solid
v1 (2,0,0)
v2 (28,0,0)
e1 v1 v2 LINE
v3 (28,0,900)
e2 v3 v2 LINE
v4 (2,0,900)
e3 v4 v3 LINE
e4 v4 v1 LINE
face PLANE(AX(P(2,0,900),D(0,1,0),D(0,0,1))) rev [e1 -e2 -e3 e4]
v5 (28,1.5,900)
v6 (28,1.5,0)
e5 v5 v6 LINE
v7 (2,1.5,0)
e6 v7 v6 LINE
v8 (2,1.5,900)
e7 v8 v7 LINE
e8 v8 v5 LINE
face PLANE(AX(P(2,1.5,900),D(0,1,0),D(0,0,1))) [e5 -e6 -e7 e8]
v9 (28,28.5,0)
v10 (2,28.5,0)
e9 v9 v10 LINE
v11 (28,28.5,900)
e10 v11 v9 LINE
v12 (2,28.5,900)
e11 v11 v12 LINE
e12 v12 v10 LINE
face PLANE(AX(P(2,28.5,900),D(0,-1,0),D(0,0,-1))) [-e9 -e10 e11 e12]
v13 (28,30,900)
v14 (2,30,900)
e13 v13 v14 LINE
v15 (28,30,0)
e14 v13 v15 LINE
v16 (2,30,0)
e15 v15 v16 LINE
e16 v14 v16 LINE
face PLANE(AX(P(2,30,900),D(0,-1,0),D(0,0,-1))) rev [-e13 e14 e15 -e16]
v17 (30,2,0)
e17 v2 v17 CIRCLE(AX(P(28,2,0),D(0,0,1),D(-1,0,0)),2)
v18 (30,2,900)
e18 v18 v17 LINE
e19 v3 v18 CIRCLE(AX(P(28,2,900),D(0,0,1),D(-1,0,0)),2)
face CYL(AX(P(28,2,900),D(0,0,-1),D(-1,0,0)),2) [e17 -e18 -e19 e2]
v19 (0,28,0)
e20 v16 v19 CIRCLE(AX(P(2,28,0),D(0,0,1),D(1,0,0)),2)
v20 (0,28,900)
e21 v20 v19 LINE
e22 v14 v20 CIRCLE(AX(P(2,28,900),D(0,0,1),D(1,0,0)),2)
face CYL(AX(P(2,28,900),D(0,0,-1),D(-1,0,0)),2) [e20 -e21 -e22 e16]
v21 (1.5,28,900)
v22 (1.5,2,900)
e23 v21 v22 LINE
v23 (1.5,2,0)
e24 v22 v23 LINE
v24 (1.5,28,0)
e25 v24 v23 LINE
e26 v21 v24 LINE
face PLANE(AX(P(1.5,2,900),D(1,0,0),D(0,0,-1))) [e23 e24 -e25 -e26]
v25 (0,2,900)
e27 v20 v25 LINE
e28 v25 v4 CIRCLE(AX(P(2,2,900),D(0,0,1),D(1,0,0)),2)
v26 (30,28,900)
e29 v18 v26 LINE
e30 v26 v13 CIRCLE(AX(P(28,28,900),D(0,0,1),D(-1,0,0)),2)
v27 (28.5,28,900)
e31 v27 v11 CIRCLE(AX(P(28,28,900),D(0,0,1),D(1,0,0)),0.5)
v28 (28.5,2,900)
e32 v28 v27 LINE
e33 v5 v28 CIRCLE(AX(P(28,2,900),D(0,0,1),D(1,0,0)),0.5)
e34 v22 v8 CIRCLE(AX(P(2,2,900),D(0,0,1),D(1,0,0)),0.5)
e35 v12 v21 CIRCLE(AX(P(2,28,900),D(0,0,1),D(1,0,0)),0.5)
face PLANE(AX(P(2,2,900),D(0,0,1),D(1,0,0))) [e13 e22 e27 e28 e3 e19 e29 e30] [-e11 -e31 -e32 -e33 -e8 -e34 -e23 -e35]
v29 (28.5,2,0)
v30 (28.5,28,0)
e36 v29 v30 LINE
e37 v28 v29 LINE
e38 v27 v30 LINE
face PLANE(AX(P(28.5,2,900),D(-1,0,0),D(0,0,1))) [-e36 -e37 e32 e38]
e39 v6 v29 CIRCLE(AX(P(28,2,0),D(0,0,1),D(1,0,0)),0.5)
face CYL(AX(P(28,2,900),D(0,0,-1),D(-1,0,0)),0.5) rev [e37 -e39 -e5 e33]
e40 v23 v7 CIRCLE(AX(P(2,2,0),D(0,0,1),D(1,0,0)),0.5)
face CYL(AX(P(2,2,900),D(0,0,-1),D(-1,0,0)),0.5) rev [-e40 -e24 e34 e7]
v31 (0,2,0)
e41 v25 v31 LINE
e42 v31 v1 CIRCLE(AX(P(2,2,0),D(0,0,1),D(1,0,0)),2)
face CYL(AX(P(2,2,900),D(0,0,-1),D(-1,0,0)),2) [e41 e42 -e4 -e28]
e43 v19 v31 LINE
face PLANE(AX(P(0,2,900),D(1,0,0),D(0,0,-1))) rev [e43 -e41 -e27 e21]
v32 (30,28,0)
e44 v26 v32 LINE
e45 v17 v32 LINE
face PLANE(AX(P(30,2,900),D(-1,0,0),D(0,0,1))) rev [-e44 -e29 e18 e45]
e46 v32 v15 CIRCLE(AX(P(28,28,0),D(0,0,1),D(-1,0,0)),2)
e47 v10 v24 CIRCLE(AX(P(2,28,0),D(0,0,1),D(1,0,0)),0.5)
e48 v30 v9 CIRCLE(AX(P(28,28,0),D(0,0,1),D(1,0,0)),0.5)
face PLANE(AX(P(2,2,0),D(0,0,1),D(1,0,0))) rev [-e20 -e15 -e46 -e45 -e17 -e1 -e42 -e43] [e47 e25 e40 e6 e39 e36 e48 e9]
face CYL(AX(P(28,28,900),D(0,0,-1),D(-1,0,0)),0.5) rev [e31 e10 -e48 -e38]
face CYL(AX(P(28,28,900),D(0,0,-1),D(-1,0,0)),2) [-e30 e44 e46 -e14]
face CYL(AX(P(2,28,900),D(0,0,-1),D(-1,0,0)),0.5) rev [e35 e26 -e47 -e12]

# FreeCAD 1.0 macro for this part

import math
import FreeCAD as App
import Part
import Sketcher

doc = App.newDocument("Part")
body = doc.addObject("PartDesign::Body", "Body")

# Sketch on XY plane
sketch1 = body.newObject("Sketcher::SketchObject", "Sketch")
sketch1.AttachmentSupport = (doc.getObject("XY_Plane"), [""])
sketch1.MapMode = "FlatFace"
sketch1.addGeometry([
    Part.LineSegment(App.Vector(0, 28, 0), App.Vector(0, 2, 0)),  # 0
    Part.ArcOfCircle(Part.Circle(App.Vector(2, 2, 0), App.Vector(0, 0, 1), 2), math.radians(-180), math.radians(-90)),  # 1
    Part.LineSegment(App.Vector(2, 0, 0), App.Vector(28, 0, 0)),  # 2
    Part.ArcOfCircle(Part.Circle(App.Vector(28, 2, 0), App.Vector(0, 0, 1), 2), math.radians(-90), math.radians(0)),  # 3
    Part.LineSegment(App.Vector(30, 2, 0), App.Vector(30, 28, 0)),  # 4
    Part.ArcOfCircle(Part.Circle(App.Vector(28, 28, 0), App.Vector(0, 0, 1), 2), math.radians(0), math.radians(90)),  # 5
    Part.LineSegment(App.Vector(28, 30, 0), App.Vector(2, 30, 0)),  # 6
    Part.ArcOfCircle(Part.Circle(App.Vector(2, 28, 0), App.Vector(0, 0, 1), 2), math.radians(90), math.radians(180)),  # 7
    Part.LineSegment(App.Vector(1.5, 2, 0), App.Vector(1.5, 28, 0)),  # 8
    Part.ArcOfCircle(Part.Circle(App.Vector(2, 28, 0), App.Vector(0, 0, 1), 0.5), math.radians(90), math.radians(180)),  # 9
    Part.LineSegment(App.Vector(2, 28.5, 0), App.Vector(28, 28.5, 0)),  # 10
    Part.ArcOfCircle(Part.Circle(App.Vector(28, 28, 0), App.Vector(0, 0, 1), 0.5), math.radians(0), math.radians(90)),  # 11
    Part.LineSegment(App.Vector(28.5, 28, 0), App.Vector(28.5, 2, 0)),  # 12
    Part.ArcOfCircle(Part.Circle(App.Vector(28, 2, 0), App.Vector(0, 0, 1), 0.5), math.radians(-90), math.radians(0)),  # 13
    Part.LineSegment(App.Vector(28, 1.5, 0), App.Vector(2, 1.5, 0)),  # 14
    Part.ArcOfCircle(Part.Circle(App.Vector(2, 2, 0), App.Vector(0, 0, 1), 0.5), math.radians(180), math.radians(270)),  # 15
], False)
sketch1.addConstraint([
    Sketcher.Constraint("Tangent", 0, 2, 1, 1),
    Sketcher.Constraint("Tangent", 1, 2, 2, 1),
    Sketcher.Constraint("Tangent", 2, 2, 3, 1),
    Sketcher.Constraint("Tangent", 3, 2, 4, 1),
    Sketcher.Constraint("Tangent", 4, 2, 5, 1),
    Sketcher.Constraint("Tangent", 5, 2, 6, 1),
    Sketcher.Constraint("Tangent", 6, 2, 7, 1),
    Sketcher.Constraint("Tangent", 7, 2, 0, 1),
    Sketcher.Constraint("Tangent", 8, 2, 9, 2),
    Sketcher.Constraint("Tangent", 9, 1, 10, 1),
    Sketcher.Constraint("Tangent", 10, 2, 11, 2),
    Sketcher.Constraint("Tangent", 11, 1, 12, 1),
    Sketcher.Constraint("Tangent", 12, 2, 13, 2),
    Sketcher.Constraint("Tangent", 13, 1, 14, 1),
    Sketcher.Constraint("Tangent", 14, 2, 15, 2),
    Sketcher.Constraint("Tangent", 15, 1, 8, 1),
    Sketcher.Constraint("Vertical", 0),
    Sketcher.Constraint("Horizontal", 2),
    Sketcher.Constraint("Vertical", 4),
    Sketcher.Constraint("Horizontal", 6),
    Sketcher.Constraint("Vertical", 8),
    Sketcher.Constraint("Horizontal", 10),
    Sketcher.Constraint("Vertical", 12),
    Sketcher.Constraint("Horizontal", 14),
    Sketcher.Constraint("Coincident", 9, 3, 7, 3),
    Sketcher.Constraint("Coincident", 11, 3, 5, 3),
    Sketcher.Constraint("Coincident", 13, 3, 3, 3),
    Sketcher.Constraint("Equal", 1, 3),
    Sketcher.Constraint("Equal", 3, 5),
    Sketcher.Constraint("Equal", 5, 7),
    Sketcher.Constraint("Equal", 13, 15),
    Sketcher.Constraint("PointOnObject", 0, 2, -2),
    Sketcher.Constraint("PointOnObject", 1, 2, -1),
    Sketcher.Constraint("Equal", 14, 0),
    Sketcher.Constraint("Radius", 1, 2.0),
    Sketcher.Constraint("Radius", 9, 0.5),
    Sketcher.Constraint("DistanceX", 2, 1, 2, 2, 26.0),
])
pad1 = body.newObject("PartDesign::Pad", "Pad")
pad1.Profile = sketch1
pad1.Length = 900

doc.recompute()
